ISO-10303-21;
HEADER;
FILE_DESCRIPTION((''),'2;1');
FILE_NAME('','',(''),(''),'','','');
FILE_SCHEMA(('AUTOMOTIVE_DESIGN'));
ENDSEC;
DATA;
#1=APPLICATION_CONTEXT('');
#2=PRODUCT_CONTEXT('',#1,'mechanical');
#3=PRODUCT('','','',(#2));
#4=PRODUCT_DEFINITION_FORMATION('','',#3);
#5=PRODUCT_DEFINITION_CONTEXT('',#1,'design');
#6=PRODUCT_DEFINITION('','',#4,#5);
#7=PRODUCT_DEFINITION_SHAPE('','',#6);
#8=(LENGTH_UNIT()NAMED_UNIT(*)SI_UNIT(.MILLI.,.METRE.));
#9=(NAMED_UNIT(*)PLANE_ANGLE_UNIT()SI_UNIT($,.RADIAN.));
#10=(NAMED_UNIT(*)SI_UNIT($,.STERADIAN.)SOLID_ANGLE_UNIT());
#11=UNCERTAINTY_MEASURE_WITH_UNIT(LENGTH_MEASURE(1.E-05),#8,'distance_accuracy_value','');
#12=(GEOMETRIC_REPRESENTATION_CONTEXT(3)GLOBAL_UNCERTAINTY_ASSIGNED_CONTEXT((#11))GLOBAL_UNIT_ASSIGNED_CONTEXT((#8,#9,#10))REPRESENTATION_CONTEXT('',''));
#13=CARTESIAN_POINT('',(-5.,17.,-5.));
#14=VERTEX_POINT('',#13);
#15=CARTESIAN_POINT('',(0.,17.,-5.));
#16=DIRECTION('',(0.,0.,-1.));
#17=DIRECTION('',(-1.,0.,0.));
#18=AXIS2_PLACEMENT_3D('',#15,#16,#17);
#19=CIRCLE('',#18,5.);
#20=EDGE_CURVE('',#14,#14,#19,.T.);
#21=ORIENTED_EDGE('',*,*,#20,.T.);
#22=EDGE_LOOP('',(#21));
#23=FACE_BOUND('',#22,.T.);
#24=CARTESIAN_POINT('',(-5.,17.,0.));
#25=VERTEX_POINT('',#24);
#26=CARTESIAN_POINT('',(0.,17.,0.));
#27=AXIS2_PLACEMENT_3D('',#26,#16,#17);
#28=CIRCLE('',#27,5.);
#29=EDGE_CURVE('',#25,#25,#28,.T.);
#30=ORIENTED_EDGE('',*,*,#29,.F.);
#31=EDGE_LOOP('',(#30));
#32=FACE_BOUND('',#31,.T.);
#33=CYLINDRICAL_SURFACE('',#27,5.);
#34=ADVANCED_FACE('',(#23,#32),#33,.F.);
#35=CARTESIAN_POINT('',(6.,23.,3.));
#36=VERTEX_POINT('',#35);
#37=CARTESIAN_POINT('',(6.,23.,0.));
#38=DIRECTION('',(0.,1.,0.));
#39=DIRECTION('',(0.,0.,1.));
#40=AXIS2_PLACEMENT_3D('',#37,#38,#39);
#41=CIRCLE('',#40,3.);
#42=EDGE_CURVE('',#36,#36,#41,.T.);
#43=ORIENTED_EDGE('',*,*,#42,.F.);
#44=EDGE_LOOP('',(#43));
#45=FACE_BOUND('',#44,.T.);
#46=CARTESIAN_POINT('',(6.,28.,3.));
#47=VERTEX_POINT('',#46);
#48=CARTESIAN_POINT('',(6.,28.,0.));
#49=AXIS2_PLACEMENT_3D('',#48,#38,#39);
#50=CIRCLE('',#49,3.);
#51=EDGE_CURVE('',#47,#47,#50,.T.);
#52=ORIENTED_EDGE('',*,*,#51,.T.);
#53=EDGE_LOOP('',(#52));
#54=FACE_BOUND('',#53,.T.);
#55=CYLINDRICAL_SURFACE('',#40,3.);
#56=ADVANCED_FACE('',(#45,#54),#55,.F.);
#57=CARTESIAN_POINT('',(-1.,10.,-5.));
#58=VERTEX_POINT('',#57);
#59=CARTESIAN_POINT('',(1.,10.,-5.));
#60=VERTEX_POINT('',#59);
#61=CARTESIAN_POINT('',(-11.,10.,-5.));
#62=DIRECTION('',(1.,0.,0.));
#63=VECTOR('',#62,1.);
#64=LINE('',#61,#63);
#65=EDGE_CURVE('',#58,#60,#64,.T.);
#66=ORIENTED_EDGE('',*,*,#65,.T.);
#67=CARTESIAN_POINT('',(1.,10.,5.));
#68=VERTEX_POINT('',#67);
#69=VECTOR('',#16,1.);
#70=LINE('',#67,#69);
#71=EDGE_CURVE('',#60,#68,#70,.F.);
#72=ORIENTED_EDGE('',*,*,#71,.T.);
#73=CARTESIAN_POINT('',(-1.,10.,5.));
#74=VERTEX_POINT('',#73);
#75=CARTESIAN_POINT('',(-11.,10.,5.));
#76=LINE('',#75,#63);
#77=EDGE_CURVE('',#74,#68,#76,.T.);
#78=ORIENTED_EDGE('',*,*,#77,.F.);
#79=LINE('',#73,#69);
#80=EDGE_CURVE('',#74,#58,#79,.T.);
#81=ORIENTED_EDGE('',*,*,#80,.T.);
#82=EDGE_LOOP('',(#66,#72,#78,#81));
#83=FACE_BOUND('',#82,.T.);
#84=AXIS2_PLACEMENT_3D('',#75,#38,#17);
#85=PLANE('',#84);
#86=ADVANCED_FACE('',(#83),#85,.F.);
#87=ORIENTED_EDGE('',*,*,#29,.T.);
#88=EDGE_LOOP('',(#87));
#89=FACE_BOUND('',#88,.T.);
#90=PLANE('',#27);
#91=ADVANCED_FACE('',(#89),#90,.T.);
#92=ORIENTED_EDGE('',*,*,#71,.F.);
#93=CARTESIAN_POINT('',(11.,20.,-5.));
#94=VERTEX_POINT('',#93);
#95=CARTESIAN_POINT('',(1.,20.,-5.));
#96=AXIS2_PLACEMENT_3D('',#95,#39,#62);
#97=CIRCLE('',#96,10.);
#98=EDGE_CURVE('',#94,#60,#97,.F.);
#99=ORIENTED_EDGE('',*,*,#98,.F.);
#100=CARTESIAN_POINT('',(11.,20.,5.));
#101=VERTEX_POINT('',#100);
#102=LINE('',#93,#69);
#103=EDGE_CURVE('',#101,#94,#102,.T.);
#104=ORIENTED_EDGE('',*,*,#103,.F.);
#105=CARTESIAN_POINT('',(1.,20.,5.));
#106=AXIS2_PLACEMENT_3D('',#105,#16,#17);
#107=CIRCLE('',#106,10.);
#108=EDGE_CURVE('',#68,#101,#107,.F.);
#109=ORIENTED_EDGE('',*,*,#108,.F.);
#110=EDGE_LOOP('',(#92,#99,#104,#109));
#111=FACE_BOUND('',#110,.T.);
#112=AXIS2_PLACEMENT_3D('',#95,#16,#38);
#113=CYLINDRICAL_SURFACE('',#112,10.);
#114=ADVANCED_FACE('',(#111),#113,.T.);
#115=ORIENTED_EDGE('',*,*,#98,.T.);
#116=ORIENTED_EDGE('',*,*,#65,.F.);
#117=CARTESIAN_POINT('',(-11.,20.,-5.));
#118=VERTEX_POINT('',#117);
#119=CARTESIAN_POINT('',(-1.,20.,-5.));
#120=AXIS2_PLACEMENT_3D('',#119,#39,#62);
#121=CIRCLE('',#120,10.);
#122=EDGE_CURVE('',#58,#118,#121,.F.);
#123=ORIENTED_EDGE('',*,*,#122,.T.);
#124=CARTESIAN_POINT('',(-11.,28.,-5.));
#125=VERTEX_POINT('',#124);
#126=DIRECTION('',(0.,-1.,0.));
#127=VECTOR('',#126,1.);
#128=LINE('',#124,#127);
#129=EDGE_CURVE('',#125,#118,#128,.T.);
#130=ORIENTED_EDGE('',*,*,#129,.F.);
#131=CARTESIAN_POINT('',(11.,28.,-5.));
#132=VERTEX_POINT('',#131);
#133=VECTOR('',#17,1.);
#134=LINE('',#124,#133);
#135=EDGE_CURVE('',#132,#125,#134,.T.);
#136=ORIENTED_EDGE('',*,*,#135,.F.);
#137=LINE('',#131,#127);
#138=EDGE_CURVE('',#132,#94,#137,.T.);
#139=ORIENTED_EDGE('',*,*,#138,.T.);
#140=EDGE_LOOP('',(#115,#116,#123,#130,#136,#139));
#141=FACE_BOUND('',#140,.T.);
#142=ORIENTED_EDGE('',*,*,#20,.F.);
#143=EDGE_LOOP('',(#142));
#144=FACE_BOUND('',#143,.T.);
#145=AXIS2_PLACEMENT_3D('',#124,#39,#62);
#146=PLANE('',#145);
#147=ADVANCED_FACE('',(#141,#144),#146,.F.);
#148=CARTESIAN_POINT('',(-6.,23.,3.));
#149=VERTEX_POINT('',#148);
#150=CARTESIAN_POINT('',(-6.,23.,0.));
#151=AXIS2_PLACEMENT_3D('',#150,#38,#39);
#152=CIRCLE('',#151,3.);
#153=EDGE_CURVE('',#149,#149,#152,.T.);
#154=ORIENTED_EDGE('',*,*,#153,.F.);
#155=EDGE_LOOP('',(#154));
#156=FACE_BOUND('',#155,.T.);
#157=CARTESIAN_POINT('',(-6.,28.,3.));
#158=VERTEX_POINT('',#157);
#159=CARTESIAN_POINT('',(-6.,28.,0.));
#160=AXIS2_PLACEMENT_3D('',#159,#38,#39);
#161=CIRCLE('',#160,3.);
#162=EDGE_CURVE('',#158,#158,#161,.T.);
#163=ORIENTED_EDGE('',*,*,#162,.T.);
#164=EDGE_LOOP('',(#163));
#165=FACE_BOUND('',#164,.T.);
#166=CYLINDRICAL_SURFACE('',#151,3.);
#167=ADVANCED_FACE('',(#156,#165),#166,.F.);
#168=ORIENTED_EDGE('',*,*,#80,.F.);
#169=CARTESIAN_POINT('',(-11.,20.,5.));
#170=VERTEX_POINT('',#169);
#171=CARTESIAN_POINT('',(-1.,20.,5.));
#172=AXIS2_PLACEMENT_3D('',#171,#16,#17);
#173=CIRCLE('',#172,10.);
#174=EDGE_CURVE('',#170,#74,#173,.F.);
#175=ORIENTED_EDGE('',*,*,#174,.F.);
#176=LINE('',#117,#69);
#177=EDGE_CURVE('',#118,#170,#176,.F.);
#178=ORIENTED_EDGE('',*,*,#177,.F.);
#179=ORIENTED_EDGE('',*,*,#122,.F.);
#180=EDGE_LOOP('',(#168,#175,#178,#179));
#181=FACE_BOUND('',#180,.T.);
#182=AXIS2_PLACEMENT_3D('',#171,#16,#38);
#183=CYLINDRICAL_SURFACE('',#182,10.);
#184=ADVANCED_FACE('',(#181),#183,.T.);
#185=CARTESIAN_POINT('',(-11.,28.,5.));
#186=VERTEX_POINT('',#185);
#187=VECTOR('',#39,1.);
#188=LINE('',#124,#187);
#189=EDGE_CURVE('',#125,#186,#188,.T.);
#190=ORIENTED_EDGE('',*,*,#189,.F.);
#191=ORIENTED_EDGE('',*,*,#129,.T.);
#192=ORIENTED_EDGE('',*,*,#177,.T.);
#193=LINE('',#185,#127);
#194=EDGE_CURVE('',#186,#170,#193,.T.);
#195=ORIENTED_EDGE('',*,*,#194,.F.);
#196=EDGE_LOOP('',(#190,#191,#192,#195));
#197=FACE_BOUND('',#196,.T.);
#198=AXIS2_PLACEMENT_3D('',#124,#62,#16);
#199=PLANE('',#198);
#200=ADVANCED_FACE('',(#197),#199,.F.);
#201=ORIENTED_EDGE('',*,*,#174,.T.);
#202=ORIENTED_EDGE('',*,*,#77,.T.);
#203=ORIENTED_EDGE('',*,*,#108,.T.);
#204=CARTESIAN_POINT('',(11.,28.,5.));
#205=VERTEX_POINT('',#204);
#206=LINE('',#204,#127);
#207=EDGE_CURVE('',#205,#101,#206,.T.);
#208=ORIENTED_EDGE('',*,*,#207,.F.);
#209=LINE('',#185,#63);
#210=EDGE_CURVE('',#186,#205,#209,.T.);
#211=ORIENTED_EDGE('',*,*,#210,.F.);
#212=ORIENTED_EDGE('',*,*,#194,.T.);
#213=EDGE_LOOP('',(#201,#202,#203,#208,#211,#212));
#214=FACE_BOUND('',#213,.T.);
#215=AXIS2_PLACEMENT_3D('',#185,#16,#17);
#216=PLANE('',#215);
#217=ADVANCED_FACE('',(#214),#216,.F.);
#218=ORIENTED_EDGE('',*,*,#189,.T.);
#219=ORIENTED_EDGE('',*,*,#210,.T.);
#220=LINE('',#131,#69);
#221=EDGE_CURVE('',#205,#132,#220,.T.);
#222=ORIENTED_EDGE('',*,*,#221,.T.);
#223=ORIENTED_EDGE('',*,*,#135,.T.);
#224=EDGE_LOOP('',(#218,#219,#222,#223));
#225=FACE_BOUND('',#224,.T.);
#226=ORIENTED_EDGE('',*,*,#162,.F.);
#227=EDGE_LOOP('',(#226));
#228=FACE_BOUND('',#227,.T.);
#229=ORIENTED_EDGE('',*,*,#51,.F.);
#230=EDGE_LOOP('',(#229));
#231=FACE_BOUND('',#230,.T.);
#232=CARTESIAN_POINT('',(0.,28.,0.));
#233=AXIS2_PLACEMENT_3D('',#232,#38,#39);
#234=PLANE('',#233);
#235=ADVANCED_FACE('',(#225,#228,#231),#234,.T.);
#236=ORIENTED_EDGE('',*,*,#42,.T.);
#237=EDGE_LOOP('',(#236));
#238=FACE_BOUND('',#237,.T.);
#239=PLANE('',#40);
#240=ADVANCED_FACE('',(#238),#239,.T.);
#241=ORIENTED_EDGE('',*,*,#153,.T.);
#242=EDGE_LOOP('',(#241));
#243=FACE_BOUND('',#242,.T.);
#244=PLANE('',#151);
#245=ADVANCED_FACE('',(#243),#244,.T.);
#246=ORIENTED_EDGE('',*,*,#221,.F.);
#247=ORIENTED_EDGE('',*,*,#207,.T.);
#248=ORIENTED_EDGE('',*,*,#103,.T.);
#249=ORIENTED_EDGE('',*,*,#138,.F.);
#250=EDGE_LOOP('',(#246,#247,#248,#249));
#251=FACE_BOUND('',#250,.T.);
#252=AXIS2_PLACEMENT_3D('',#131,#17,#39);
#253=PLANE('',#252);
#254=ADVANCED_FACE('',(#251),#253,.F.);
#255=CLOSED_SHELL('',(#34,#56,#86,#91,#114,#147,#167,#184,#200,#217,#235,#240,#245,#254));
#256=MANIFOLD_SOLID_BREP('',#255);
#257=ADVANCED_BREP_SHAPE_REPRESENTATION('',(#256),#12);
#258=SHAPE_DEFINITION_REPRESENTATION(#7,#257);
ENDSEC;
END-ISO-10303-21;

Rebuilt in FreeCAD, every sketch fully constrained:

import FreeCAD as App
import Part
import Sketcher
Q = App.Units.Quantity


def edges_at(feature, points):
    """Names of the edges that pass closest to the given points."""
    edges = feature.Shape.Edges
    near = lambda p: min(range(len(edges)), key=lambda i: edges[i].distToShape(Part.Vertex(*p))[0])
    return sorted({f"Edge{near(p) + 1}" for p in points})

doc = App.newDocument("Part")
body = doc.addObject("PartDesign::Body", "Body")

# Sketch on XZ plane
sketch1 = body.newObject("Sketcher::SketchObject", "Sketch")
sketch1.AttachmentSupport = (doc.getObject("XZ_Plane"), [""])
sketch1.MapMode = "FlatFace"
sketch1.addGeometry([
    Part.LineSegment(App.Vector(-11, -5, 0), App.Vector(-11, 5, 0)),
    Part.LineSegment(App.Vector(-11, 5, 0), App.Vector(11, 5, 0)),
    Part.LineSegment(App.Vector(11, 5, 0), App.Vector(11, -5, 0)),
    Part.LineSegment(App.Vector(11, -5, 0), App.Vector(-11, -5, 0)),
], False)
sketch1.addConstraint([
    Sketcher.Constraint("Coincident", 0, 2, 1, 1),
    Sketcher.Constraint("Coincident", 1, 2, 2, 1),
    Sketcher.Constraint("Coincident", 2, 2, 3, 1),
    Sketcher.Constraint("Coincident", 3, 2, 0, 1),
    Sketcher.Constraint("Vertical", 0),
    Sketcher.Constraint("Horizontal", 1),
    Sketcher.Constraint("Vertical", 2),
    Sketcher.Constraint("Horizontal", 3),
    Sketcher.Constraint("Symmetric", 0, 2, 2, 2, -1, 1),
    Sketcher.Constraint("DistanceX", 1, 1, 1, 2, Q("22 mm")),
    Sketcher.Constraint("DistanceY", 0, 1, 0, 2, Q("10 mm")),
])
pad1 = body.newObject("PartDesign::Pad", "Pad")
pad1.Profile = sketch1
pad1.Length = 28
pad1.Reversed = True

# Sketch on XZ plane
sketch2 = body.newObject("Sketcher::SketchObject", "Sketch001")
sketch2.AttachmentSupport = (doc.getObject("XZ_Plane"), [""])
sketch2.MapMode = "FlatFace"
sketch2.AttachmentOffset = App.Placement(App.Vector(0, 0, -28), App.Rotation())
sketch2.addGeometry([
    Part.Circle(App.Vector(-6, 0, 0), App.Vector(0, 0, 1), 3),
    Part.Circle(App.Vector(6, 0, 0), App.Vector(0, 0, 1), 3),
], False)
sketch2.addConstraint([
    Sketcher.Constraint("Equal", 0, 1),
    Sketcher.Constraint("Symmetric", 0, 3, 1, 3, -1, 1),
    Sketcher.Constraint("PointOnObject", 0, 3, -1),
    Sketcher.Constraint("Diameter", 0, Q("6 mm")),
    Sketcher.Constraint("DistanceX", 0, 3, -1, 1, Q("6 mm")),
])
pocket1 = body.newObject("PartDesign::Pocket", "Pocket")
pocket1.Profile = sketch2
pocket1.Length = 5
pocket1.Reversed = True

# Sketch on XY plane
sketch3 = body.newObject("Sketcher::SketchObject", "Sketch002")
sketch3.AttachmentSupport = (doc.getObject("XY_Plane"), [""])
sketch3.MapMode = "FlatFace"
sketch3.AttachmentOffset = App.Placement(App.Vector(0, 0, -5), App.Rotation())
sketch3.addGeometry([
    Part.LineSegment(App.Vector(11, 10, 0), App.Vector(11, 0, 0)),
    Part.LineSegment(App.Vector(11, 0, 0), App.Vector(-11, 0, 0)),
    Part.LineSegment(App.Vector(-11, 0, 0), App.Vector(-11, 10, 0)),
    Part.LineSegment(App.Vector(-11, 10, 0), App.Vector(11, 10, 0)),
], False)
sketch3.addConstraint([
    Sketcher.Constraint("Coincident", 0, 2, 1, 1),
    Sketcher.Constraint("Coincident", 1, 2, 2, 1),
    Sketcher.Constraint("Coincident", 2, 2, 3, 1),
    Sketcher.Constraint("Coincident", 3, 2, 0, 1),
    Sketcher.Constraint("Vertical", 0),
    Sketcher.Constraint("Horizontal", 1),
    Sketcher.Constraint("Vertical", 2),
    Sketcher.Constraint("Horizontal", 3),
    Sketcher.Constraint("Symmetric", 0, 2, 1, 2, -1, 1),
    Sketcher.Constraint("DistanceX", 1, 2, 1, 1, Q("22 mm")),
    Sketcher.Constraint("DistanceY", 0, 2, 0, 1, Q("10 mm")),
])
pocket2 = body.newObject("PartDesign::Pocket", "Pocket001")
pocket2.Profile = sketch3
pocket2.Type = "ThroughAll"
pocket2.Reversed = True

# Sketch on XY plane
sketch4 = body.newObject("Sketcher::SketchObject", "Sketch003")
sketch4.AttachmentSupport = (doc.getObject("XY_Plane"), [""])
sketch4.MapMode = "FlatFace"
sketch4.AttachmentOffset = App.Placement(App.Vector(0, 0, -5), App.Rotation())
sketch4.addGeometry(Part.Circle(App.Vector(0, 17, 0), App.Vector(0, 0, 1), 5), False)
sketch4.addConstraint([
    Sketcher.Constraint("PointOnObject", 0, 3, -2),
    Sketcher.Constraint("Diameter", 0, Q("10 mm")),
    Sketcher.Constraint("DistanceY", -1, 1, 0, 3, Q("17 mm")),
])
pocket3 = body.newObject("PartDesign::Pocket", "Pocket002")
pocket3.Profile = sketch4
pocket3.Length = 5
pocket3.Reversed = True
doc.recompute()

fillet = body.newObject("PartDesign::Fillet", "Fillet")
fillet.Base = (pocket3, edges_at(pocket3, [(-11, 10, 0), (11, 10, 0)]))
fillet.Radius = 10

doc.recompute()
